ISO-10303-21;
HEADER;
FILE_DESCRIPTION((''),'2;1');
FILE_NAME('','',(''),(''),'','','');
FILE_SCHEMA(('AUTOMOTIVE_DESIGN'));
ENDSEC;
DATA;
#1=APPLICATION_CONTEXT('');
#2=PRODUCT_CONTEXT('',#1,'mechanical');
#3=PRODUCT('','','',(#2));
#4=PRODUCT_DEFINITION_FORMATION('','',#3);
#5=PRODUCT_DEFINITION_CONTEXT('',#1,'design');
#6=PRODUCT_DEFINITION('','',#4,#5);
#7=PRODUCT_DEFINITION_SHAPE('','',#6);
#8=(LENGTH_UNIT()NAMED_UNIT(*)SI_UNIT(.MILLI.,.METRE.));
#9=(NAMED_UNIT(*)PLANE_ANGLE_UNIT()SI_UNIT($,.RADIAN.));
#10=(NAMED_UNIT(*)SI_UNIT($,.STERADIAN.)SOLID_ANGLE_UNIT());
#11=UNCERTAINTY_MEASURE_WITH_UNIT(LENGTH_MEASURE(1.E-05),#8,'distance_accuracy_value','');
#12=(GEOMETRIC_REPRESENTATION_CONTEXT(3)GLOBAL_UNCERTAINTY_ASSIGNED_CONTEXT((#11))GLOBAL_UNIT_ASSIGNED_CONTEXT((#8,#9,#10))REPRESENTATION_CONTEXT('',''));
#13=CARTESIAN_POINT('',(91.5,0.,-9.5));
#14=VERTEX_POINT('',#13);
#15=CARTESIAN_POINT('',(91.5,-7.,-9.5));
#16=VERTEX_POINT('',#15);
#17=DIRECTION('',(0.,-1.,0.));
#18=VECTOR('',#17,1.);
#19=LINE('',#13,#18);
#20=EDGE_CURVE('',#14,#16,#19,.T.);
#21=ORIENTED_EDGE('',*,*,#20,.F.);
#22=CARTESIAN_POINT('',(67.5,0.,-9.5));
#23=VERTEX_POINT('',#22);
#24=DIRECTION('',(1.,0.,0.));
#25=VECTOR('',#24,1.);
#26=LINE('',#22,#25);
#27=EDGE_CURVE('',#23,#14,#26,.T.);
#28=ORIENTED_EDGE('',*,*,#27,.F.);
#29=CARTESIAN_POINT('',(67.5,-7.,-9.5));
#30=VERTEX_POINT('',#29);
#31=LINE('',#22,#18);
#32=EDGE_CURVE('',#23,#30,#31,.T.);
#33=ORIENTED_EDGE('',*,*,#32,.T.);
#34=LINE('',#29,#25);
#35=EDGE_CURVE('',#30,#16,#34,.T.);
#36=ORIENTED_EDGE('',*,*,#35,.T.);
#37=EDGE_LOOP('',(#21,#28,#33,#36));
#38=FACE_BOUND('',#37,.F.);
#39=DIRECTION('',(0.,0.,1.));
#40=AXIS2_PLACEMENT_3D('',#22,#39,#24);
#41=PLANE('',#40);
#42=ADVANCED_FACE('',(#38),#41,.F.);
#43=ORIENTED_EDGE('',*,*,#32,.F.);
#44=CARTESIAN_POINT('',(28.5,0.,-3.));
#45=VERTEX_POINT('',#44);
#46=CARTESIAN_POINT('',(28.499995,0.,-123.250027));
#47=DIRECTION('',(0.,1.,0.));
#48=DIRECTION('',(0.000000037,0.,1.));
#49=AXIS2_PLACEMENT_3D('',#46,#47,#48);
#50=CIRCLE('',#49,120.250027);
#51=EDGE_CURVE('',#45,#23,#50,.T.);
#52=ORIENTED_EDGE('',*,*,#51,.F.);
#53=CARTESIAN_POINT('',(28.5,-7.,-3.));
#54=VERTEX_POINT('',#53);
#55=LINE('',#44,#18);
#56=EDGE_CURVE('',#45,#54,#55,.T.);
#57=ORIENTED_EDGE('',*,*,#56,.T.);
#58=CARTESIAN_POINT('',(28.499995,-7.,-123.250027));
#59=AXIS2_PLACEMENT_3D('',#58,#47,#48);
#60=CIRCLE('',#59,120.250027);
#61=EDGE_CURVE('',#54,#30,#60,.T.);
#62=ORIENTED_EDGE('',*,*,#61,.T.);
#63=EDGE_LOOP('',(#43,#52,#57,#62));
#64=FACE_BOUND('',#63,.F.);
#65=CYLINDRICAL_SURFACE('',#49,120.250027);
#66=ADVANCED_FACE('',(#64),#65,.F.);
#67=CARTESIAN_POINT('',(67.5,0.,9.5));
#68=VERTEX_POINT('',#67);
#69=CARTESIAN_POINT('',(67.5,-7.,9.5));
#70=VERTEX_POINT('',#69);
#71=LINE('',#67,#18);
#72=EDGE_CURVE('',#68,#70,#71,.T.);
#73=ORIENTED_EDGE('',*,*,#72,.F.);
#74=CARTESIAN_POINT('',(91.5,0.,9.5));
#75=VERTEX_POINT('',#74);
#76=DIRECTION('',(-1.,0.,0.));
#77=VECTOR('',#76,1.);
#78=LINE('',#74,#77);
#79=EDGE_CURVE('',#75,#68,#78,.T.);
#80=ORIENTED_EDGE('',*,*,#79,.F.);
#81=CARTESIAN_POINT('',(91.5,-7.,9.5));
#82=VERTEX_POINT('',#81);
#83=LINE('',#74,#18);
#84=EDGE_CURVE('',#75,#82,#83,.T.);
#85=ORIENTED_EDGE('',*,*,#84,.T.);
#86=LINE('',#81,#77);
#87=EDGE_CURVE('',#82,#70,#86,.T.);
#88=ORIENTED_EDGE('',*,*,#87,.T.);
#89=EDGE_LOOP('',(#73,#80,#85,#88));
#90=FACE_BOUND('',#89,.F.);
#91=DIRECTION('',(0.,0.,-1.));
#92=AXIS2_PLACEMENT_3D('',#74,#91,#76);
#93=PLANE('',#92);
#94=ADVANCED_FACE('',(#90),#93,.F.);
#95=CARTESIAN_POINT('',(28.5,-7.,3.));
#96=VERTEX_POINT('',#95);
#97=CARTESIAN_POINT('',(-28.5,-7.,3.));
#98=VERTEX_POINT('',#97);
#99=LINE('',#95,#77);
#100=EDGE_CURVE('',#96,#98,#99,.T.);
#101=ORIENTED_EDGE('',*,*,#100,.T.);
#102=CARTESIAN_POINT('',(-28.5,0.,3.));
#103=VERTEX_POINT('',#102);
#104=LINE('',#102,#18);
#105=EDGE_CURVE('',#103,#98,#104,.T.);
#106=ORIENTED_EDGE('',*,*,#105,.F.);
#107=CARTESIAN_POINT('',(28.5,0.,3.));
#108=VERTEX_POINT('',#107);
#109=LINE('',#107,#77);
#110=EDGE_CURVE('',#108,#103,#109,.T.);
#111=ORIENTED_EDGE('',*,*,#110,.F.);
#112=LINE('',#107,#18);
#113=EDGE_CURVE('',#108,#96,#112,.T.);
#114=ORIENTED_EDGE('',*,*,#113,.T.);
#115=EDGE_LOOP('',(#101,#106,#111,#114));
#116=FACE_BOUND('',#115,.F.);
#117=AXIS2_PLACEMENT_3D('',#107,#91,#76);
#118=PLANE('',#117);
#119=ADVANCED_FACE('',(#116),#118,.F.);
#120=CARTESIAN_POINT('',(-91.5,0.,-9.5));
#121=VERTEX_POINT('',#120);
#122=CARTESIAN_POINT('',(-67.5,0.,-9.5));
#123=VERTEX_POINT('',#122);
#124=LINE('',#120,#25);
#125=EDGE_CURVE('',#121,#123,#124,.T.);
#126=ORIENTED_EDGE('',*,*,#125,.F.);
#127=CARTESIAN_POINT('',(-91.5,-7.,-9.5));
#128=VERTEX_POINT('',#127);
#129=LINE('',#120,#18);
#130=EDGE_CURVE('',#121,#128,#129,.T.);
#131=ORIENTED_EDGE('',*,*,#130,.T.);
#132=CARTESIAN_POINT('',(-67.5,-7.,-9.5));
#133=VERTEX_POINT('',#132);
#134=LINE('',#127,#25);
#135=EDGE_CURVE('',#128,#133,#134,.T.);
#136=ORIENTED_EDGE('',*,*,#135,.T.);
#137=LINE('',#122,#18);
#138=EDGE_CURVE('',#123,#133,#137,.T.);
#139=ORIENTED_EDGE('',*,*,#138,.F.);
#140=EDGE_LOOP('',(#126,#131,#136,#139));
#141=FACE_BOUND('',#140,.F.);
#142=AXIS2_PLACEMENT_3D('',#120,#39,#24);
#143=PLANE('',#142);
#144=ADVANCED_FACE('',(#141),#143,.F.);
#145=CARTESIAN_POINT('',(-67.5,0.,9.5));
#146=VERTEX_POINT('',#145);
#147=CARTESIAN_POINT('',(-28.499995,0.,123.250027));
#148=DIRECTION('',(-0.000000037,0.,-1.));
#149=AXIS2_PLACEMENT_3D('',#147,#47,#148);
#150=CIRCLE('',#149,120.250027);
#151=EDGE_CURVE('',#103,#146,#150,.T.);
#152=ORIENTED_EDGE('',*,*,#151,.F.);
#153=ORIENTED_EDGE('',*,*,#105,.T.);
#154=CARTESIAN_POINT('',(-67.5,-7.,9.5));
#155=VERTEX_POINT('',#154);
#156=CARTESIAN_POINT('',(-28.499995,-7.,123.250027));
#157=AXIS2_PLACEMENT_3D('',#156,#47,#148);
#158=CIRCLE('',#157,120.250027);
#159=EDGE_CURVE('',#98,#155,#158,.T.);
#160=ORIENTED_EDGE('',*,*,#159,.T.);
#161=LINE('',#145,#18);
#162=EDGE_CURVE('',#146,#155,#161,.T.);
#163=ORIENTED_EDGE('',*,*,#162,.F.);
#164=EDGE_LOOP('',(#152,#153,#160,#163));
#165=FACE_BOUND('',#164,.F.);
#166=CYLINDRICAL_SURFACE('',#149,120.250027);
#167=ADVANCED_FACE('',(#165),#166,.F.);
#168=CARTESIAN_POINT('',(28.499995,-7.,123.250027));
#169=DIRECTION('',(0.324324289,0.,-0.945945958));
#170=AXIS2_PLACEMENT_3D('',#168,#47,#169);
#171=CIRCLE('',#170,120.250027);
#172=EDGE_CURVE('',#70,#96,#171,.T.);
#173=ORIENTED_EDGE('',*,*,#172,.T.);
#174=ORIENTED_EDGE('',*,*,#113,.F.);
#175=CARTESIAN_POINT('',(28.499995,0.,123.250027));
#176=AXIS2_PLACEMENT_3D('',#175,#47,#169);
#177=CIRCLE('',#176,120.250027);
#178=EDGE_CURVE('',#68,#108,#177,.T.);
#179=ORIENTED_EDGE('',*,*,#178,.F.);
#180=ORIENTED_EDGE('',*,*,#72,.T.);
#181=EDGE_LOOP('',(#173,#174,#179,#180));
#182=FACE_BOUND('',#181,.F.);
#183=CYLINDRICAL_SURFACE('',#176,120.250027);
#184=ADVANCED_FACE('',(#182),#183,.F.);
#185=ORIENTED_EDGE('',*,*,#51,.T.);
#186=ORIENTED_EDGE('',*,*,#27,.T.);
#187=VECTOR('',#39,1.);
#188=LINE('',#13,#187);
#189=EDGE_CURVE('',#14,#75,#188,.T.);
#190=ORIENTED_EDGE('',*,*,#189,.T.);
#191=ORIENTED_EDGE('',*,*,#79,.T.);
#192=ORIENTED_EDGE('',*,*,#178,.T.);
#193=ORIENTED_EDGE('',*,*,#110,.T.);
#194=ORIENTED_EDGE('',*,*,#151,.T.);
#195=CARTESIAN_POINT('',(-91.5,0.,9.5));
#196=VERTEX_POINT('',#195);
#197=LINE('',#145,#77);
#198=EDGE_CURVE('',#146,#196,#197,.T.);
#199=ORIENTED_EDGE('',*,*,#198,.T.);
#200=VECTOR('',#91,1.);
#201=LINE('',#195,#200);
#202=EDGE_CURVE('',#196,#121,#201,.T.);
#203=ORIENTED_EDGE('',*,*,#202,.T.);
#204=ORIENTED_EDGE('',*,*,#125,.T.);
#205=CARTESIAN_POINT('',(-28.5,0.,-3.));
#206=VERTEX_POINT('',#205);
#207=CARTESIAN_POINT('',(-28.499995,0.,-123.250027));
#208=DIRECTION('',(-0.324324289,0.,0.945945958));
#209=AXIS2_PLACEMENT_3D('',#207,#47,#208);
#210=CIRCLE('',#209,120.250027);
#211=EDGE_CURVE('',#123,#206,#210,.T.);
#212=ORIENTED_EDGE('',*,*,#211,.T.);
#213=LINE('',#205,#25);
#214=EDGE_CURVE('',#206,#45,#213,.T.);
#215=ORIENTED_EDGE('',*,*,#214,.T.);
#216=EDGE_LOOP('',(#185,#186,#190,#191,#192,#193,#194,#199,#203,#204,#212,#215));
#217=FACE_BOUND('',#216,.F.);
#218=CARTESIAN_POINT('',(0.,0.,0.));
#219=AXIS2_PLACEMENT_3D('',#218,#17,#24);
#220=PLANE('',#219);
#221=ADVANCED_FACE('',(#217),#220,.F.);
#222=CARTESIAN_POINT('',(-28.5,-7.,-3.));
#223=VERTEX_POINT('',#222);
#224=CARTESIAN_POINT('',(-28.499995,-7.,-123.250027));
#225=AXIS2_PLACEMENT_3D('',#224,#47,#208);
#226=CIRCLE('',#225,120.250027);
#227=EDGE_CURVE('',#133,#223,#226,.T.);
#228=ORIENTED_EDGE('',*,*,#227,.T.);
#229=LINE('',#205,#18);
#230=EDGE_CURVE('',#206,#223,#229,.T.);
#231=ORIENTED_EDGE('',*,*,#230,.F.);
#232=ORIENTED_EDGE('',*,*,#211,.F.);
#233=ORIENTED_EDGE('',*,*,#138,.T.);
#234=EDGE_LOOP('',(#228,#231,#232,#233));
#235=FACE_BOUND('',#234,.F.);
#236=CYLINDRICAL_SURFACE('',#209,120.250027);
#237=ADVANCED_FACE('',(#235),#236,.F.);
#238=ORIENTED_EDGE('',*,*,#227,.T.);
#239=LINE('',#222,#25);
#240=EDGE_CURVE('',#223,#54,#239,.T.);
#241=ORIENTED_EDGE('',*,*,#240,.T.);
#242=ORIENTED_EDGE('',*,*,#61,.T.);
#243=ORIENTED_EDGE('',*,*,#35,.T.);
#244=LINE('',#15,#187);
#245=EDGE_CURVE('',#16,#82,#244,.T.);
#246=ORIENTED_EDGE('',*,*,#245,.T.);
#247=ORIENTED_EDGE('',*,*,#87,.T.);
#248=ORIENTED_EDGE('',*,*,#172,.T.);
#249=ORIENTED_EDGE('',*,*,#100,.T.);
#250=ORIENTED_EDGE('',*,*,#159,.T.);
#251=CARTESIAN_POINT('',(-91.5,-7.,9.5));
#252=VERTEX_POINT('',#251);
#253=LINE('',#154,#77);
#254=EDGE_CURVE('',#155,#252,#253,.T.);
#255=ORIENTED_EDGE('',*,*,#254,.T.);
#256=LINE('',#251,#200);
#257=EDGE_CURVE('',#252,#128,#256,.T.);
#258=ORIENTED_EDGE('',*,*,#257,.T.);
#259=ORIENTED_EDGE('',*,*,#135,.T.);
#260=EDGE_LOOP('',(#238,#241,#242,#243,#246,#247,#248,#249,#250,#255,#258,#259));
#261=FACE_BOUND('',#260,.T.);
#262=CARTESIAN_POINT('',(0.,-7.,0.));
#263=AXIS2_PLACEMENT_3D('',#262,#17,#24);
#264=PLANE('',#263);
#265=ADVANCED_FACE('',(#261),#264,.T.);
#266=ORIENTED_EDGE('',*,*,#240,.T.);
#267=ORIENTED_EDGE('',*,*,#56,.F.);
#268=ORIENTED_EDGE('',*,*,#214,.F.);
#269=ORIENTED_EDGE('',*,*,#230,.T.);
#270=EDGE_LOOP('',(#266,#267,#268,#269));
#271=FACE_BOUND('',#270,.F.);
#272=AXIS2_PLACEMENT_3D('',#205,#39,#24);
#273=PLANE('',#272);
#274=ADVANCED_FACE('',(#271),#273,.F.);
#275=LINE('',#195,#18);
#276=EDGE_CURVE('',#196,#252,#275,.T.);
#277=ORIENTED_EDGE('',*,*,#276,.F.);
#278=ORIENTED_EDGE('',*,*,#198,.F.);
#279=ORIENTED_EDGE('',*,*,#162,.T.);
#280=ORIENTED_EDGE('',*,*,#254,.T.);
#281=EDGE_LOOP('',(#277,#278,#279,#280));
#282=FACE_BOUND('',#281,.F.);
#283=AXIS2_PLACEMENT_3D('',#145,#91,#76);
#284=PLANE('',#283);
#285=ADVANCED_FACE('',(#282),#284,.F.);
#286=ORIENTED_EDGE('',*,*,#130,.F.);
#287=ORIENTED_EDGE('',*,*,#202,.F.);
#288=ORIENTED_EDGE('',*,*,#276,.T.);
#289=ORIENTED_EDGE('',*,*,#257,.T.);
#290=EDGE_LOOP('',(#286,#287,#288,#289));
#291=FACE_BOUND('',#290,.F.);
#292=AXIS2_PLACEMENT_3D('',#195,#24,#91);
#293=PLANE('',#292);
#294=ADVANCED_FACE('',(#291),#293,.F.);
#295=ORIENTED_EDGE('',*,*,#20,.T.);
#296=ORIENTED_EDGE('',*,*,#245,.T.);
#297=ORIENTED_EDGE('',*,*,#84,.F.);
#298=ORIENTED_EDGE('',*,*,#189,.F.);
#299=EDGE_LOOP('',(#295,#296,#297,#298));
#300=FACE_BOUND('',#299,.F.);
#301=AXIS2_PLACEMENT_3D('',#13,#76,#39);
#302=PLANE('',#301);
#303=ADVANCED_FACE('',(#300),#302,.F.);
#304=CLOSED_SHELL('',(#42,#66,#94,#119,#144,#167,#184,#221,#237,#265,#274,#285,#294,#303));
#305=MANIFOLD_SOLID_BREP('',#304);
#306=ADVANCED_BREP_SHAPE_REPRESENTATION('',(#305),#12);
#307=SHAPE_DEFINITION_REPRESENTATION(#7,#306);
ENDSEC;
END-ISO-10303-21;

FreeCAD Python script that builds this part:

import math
import FreeCAD as App
import Part
import Sketcher

V = App.Vector

doc = App.newDocument("Part")
body = doc.addObject("PartDesign::Body", "Body")

sketch1 = doc.addObject("Sketcher::SketchObject", "Sketch")
body.addObject(sketch1)
sketch1.AttachmentSupport = (doc.XZ_Plane, [""])
sketch1.MapMode = "FlatFace"
sketch1.addGeometry(Part.LineSegment(V(28.5, 3, 0), V(-28.5, 3, 0)), False)
sketch1.addGeometry(Part.ArcOfCircle(Part.Circle(V(-28.499995, 123.250027, 0), V(0, 0, 1), 120.250027), math.radians(-108.924642), math.radians(-90.000002)), False)
sketch1.addGeometry(Part.LineSegment(V(-67.5, 9.5, 0), V(-91.5, 9.5, 0)), False)
sketch1.addGeometry(Part.LineSegment(V(-91.5, 9.5, 0), V(-91.5, -9.5, 0)), False)
sketch1.addGeometry(Part.LineSegment(V(-91.5, -9.5, 0), V(-67.5, -9.5, 0)), False)
sketch1.addGeometry(Part.ArcOfCircle(Part.Circle(V(-28.499995, -123.250027, 0), V(0, 0, 1), 120.250027), math.radians(90.000002), math.radians(108.924642)), False)
sketch1.addGeometry(Part.LineSegment(V(-28.5, -3, 0), V(28.5, -3, 0)), False)
sketch1.addGeometry(Part.ArcOfCircle(Part.Circle(V(28.499995, -123.250027, 0), V(0, 0, 1), 120.250027), math.radians(71.075358), math.radians(89.999998)), False)
sketch1.addGeometry(Part.LineSegment(V(67.5, -9.5, 0), V(91.5, -9.5, 0)), False)
sketch1.addGeometry(Part.LineSegment(V(91.5, -9.5, 0), V(91.5, 9.5, 0)), False)
sketch1.addGeometry(Part.LineSegment(V(91.5, 9.5, 0), V(67.5, 9.5, 0)), False)
sketch1.addGeometry(Part.ArcOfCircle(Part.Circle(V(28.499995, 123.250027, 0), V(0, 0, 1), 120.250027), math.radians(-89.999998), math.radians(-71.075358)), False)
sketch1.addConstraint(Sketcher.Constraint("Tangent", 0, 2, 1, 2))
sketch1.addConstraint(Sketcher.Constraint("Coincident", 1, 1, 2, 1))
sketch1.addConstraint(Sketcher.Constraint("Coincident", 2, 2, 3, 1))
sketch1.addConstraint(Sketcher.Constraint("Coincident", 3, 2, 4, 1))
sketch1.addConstraint(Sketcher.Constraint("Coincident", 4, 2, 5, 2))
sketch1.addConstraint(Sketcher.Constraint("Tangent", 5, 1, 6, 1))
sketch1.addConstraint(Sketcher.Constraint("Tangent", 6, 2, 7, 2))
sketch1.addConstraint(Sketcher.Constraint("Coincident", 7, 1, 8, 1))
sketch1.addConstraint(Sketcher.Constraint("Coincident", 8, 2, 9, 1))
sketch1.addConstraint(Sketcher.Constraint("Coincident", 9, 2, 10, 1))
sketch1.addConstraint(Sketcher.Constraint("Coincident", 10, 2, 11, 2))
sketch1.addConstraint(Sketcher.Constraint("Tangent", 11, 1, 0, 1))
sketch1.addConstraint(Sketcher.Constraint("Horizontal", 0))
sketch1.addConstraint(Sketcher.Constraint("Horizontal", 2))
sketch1.addConstraint(Sketcher.Constraint("Vertical", 3))
sketch1.addConstraint(Sketcher.Constraint("Horizontal", 4))
sketch1.addConstraint(Sketcher.Constraint("Horizontal", 6))
sketch1.addConstraint(Sketcher.Constraint("Horizontal", 8))
sketch1.addConstraint(Sketcher.Constraint("Vertical", 9))
sketch1.addConstraint(Sketcher.Constraint("Horizontal", 10))
sketch1.addConstraint(Sketcher.Constraint("Equal", 1, 5))
sketch1.addConstraint(Sketcher.Constraint("Equal", 5, 7))
sketch1.addConstraint(Sketcher.Constraint("Equal", 7, 11))
sketch1.addConstraint(Sketcher.Constraint("Symmetric", 1, 3, 7, 3, -1, 1))
sketch1.addConstraint(Sketcher.Constraint("Symmetric", 2, 2, 8, 2, -1, 1))
sketch1.addConstraint(Sketcher.Constraint("Symmetric", 4, 2, 10, 2, -1, 1))
sketch1.addConstraint(Sketcher.Constraint("Symmetric", 4, 2, 7, 1, -2))
sketch1.addConstraint(Sketcher.Constraint("DistanceX", 0, 2, 0, 1, 57.0))
sketch1.addConstraint(Sketcher.Constraint("DistanceX", 2, 2, 2, 1, 24.0))
sketch1.addConstraint(Sketcher.Constraint("DistanceY", 3, 2, 3, 1, 19.0))
sketch1.addConstraint(Sketcher.Constraint("DistanceY", -1, 1, 0, 2, 3.0))
sketch1.addConstraint(Sketcher.Constraint("DistanceX", 2, 2, 0, 2, 63.0))
pad1 = doc.addObject("PartDesign::Pad", "Pad")
body.addObject(pad1)
pad1.Profile = sketch1
pad1.Length = 7

doc.recompute()
